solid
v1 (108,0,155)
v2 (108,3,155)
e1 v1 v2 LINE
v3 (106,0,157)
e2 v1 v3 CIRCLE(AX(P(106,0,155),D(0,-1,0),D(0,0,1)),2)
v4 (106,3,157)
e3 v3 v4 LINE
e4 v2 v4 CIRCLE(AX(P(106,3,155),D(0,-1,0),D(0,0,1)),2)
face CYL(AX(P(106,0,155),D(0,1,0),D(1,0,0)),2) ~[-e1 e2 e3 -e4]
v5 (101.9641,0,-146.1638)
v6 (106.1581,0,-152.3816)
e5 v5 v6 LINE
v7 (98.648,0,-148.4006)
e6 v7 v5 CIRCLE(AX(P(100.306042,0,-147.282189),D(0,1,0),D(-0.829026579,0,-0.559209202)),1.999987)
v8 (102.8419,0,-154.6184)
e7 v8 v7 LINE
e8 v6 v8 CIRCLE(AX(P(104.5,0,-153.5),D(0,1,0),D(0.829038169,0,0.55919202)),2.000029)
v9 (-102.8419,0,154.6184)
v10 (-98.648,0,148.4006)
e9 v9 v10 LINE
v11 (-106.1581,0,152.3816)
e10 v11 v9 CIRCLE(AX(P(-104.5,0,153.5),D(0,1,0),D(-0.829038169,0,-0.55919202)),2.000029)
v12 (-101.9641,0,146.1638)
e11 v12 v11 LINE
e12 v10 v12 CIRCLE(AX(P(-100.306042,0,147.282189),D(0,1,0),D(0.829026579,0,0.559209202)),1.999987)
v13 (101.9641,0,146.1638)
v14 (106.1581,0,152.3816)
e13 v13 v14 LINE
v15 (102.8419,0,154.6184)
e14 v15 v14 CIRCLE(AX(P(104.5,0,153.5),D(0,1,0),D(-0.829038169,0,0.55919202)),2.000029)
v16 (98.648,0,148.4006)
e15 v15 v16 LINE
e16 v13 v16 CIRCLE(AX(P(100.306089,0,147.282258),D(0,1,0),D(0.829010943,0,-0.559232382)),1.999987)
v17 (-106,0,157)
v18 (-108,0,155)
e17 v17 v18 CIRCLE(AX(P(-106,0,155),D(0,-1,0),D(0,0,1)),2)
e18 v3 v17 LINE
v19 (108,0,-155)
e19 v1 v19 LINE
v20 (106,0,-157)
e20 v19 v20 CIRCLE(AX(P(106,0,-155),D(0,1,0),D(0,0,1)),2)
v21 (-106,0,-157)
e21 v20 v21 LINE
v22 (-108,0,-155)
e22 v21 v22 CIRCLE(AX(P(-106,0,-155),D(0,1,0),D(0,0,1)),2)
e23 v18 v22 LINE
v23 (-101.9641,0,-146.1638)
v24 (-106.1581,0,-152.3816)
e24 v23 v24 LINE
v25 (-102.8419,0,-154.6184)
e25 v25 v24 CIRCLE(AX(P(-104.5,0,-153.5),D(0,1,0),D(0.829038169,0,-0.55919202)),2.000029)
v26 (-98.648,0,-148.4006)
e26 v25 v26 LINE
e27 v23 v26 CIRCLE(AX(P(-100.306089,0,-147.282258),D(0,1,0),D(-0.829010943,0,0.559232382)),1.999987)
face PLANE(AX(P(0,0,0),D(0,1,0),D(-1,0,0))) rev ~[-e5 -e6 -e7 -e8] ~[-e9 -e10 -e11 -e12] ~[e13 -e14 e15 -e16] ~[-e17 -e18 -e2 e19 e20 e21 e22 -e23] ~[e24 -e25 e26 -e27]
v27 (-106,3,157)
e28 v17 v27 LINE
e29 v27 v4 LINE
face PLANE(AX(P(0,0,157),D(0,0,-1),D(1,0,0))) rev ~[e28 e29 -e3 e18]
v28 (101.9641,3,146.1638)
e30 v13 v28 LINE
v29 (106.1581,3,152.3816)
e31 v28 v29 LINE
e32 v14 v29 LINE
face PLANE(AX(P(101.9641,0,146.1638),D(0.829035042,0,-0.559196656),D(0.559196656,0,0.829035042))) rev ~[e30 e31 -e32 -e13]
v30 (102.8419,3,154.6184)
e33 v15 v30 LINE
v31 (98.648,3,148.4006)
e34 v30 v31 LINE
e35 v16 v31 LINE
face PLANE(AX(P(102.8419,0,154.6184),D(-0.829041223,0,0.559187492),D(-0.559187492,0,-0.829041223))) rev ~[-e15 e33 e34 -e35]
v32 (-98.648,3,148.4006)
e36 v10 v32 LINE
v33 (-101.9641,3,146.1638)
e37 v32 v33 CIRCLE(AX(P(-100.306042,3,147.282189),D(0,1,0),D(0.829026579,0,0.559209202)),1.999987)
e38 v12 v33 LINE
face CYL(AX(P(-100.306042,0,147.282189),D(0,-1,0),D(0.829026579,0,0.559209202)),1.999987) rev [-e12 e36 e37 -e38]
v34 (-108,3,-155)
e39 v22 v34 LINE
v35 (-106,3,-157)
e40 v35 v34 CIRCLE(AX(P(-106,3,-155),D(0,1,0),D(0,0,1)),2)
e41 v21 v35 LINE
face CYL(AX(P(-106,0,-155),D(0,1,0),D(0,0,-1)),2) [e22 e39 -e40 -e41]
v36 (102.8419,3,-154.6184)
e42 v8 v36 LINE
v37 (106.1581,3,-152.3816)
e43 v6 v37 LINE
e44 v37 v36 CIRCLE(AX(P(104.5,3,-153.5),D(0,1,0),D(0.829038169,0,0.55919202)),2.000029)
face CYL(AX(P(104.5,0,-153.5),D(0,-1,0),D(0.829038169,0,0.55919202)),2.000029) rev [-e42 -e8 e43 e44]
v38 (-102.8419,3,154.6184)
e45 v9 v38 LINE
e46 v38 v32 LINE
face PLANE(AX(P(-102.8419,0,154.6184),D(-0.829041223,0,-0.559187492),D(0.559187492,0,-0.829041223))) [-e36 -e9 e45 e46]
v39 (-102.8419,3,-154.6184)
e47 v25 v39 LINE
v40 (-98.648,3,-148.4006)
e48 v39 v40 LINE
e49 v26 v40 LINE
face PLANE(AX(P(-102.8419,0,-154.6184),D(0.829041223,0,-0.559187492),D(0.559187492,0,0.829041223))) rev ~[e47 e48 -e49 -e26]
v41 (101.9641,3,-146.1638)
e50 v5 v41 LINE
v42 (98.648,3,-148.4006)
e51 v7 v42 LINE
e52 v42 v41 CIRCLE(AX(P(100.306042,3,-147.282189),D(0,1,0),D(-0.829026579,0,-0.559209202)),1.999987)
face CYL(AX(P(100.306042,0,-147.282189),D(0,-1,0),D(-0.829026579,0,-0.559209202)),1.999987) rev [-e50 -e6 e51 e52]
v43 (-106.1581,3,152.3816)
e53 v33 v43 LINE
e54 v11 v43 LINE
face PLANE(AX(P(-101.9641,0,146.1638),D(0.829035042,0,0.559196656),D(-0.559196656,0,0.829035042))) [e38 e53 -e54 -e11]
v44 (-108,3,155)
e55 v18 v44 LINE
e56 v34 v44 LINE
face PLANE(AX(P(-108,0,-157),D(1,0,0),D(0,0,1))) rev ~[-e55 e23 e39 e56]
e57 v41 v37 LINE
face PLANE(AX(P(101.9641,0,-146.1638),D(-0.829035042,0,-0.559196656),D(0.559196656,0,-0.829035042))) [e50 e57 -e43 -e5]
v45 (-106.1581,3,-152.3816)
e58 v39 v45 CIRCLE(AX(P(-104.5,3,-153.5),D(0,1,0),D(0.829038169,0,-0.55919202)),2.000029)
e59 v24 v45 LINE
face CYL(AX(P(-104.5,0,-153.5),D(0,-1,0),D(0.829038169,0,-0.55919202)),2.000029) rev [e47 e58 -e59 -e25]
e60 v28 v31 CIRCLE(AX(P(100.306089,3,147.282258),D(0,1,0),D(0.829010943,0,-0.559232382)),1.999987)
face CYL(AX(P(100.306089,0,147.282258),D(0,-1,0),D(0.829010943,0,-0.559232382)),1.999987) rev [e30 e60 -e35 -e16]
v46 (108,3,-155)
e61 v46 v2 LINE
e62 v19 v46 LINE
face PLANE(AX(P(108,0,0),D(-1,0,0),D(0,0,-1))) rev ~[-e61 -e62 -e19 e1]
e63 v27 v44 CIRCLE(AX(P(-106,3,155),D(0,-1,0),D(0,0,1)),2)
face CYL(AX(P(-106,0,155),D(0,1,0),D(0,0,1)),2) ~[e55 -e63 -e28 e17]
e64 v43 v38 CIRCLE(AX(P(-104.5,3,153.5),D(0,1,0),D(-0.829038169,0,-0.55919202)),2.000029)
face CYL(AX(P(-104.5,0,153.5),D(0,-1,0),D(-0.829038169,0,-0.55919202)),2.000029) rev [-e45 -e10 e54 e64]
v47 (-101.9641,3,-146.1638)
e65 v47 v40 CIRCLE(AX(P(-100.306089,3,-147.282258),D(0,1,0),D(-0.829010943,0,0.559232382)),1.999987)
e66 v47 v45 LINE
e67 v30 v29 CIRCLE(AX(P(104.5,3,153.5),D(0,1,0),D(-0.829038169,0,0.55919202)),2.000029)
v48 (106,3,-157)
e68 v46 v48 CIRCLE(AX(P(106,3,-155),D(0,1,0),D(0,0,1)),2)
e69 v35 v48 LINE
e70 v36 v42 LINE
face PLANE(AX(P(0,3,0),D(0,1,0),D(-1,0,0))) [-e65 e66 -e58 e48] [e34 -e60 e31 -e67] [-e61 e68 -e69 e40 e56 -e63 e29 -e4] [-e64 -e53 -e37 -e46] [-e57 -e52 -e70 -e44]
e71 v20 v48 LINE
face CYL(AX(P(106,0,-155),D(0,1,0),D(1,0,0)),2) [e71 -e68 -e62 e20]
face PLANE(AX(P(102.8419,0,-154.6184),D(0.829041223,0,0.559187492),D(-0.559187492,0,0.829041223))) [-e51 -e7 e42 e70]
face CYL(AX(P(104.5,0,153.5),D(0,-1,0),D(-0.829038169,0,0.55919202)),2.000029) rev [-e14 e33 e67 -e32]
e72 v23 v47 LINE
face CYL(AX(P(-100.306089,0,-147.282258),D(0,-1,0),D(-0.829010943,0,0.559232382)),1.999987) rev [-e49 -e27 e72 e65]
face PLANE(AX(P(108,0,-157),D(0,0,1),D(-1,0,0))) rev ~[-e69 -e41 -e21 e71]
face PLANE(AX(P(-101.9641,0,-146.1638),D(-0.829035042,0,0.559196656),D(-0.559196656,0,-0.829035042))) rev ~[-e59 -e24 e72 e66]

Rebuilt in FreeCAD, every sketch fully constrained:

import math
import FreeCAD as App
import Part
import Sketcher
Q = App.Units.Quantity


def edges_at(feature, points):
    """Names of the edges that pass closest to the given points."""
    edges = feature.Shape.Edges
    near = lambda p: min(range(len(edges)), key=lambda i: edges[i].distToShape(Part.Vertex(*p))[0])
    return sorted({f"Edge{near(p) + 1}" for p in points})


def add_polygon(sketch, points):
    """Adds a closed chain of lines whose ends are joined by coincident constraints."""
    first, n = sketch.GeometryCount, len(points)
    for a, b in zip(points, points[1:] + points[:1]):
        sketch.addGeometry(Part.LineSegment(App.Vector(*a, 0), App.Vector(*b, 0)), False)
    for i in range(n):
        sketch.addConstraint(Sketcher.Constraint("Coincident", first + i, 2, first + (i + 1) % n, 1))

doc = App.newDocument("Part")
params = doc.addObject("Spreadsheet::Sheet", "Params")
for row, (alias, value) in enumerate([
    ("sketch1_radius", "2 mm"),
    ("sketch1_width", "216 mm"),
    ("sketch1_height", "314 mm"),
    ("sketch1_length", "7.5 mm"),
    ("pad1_length", "3 mm"),
    ("fillet_radius", "2 mm"),
], start=1):
    params.set(f"A{row}", alias)
    params.set(f"B{row}", "=" + value)
    params.setAlias(f"B{row}", alias)

body = doc.addObject("PartDesign::Body", "Body")

sketch1 = body.newObject("Sketcher::SketchObject", "Sketch")
sketch1.AttachmentSupport = (doc.getObject("XZ_Plane"), [""])
sketch1.MapMode = "FlatFace"
add_polygon(sketch1, [(108, -157), (-108, -157), (-108, 157), (108, 157)])
sketch1.addGeometry(Part.LineSegment(App.Vector(106.1581, -152.3816, 0), App.Vector(101.9641, -146.1638, 0)), False)
sketch1.addGeometry(Part.ArcOfCircle(Part.Circle(App.Vector(100.3061, -147.2822, 0), App.Vector(0, 0, 1), 2.000029), math.radians(34.001541), math.radians(213.999939)), False)
sketch1.addGeometry(Part.LineSegment(App.Vector(98.648, -148.4006, 0), App.Vector(102.8419, -154.6184, 0)), False)
sketch1.addGeometry(Part.ArcOfCircle(Part.Circle(App.Vector(104.5, -153.5, 0), App.Vector(0, 0, 1), 2.000029), math.radians(-146.000061), math.radians(33.999939)), False)
sketch1.addGeometry(Part.LineSegment(App.Vector(102.8419, 154.6184, 0), App.Vector(98.648, 148.4006, 0)), False)
sketch1.addGeometry(Part.ArcOfCircle(Part.Circle(App.Vector(100.3061, 147.2822, 0), App.Vector(0, 0, 1), 1.999946), math.radians(146.000061), math.radians(325.998459)), False)
sketch1.addGeometry(Part.LineSegment(App.Vector(101.9641, 146.1638, 0), App.Vector(106.1581, 152.3816, 0)), False)
sketch1.addGeometry(Part.ArcOfCircle(Part.Circle(App.Vector(104.5, 153.5, 0), App.Vector(0, 0, 1), 2.000029), math.radians(-33.999939), math.radians(146.000061)), False)
sketch1.addGeometry(Part.LineSegment(App.Vector(-102.8419, -154.6184, 0), App.Vector(-98.648, -148.4006, 0)), False)
sketch1.addGeometry(Part.ArcOfCircle(Part.Circle(App.Vector(-100.3061, -147.2822, 0), App.Vector(0, 0, 1), 1.999946), math.radians(-33.999939), math.radians(145.998459)), False)
sketch1.addGeometry(Part.LineSegment(App.Vector(-101.9641, -146.1638, 0), App.Vector(-106.1581, -152.3816, 0)), False)
sketch1.addGeometry(Part.ArcOfCircle(Part.Circle(App.Vector(-104.5, -153.5, 0), App.Vector(0, 0, 1), 2.000029), math.radians(146.000061), math.radians(326.000061)), False)
sketch1.addGeometry(Part.ArcOfCircle(Part.Circle(App.Vector(-104.5, 153.5, 0), App.Vector(0, 0, 1), 2.000029), math.radians(33.999939), math.radians(213.999939)), False)
sketch1.addGeometry(Part.LineSegment(App.Vector(-106.1581, 152.3816, 0), App.Vector(-101.9641, 146.1638, 0)), False)
sketch1.addGeometry(Part.ArcOfCircle(Part.Circle(App.Vector(-100.3061, 147.2822, 0), App.Vector(0, 0, 1), 2.000029), math.radians(-145.998459), math.radians(33.999939)), False)
sketch1.addGeometry(Part.LineSegment(App.Vector(-98.648, 148.4006, 0), App.Vector(-102.8419, 154.6184, 0)), False)
sketch1.addConstraint(Sketcher.Constraint("Tangent", 4, 2, 5, 1))
sketch1.addConstraint(Sketcher.Constraint("Tangent", 5, 2, 6, 1))
sketch1.addConstraint(Sketcher.Constraint("Tangent", 6, 2, 7, 1))
sketch1.addConstraint(Sketcher.Constraint("Tangent", 7, 2, 4, 1))
sketch1.addConstraint(Sketcher.Constraint("Tangent", 8, 2, 9, 1))
sketch1.addConstraint(Sketcher.Constraint("Tangent", 9, 2, 10, 1))
sketch1.addConstraint(Sketcher.Constraint("Tangent", 10, 2, 11, 1))
sketch1.addConstraint(Sketcher.Constraint("Tangent", 11, 2, 8, 1))
sketch1.addConstraint(Sketcher.Constraint("Tangent", 12, 2, 13, 1))
sketch1.addConstraint(Sketcher.Constraint("Tangent", 13, 2, 14, 1))
sketch1.addConstraint(Sketcher.Constraint("Tangent", 14, 2, 15, 1))
sketch1.addConstraint(Sketcher.Constraint("Tangent", 15, 2, 12, 1))
sketch1.addConstraint(Sketcher.Constraint("Tangent", 16, 2, 17, 1))
sketch1.addConstraint(Sketcher.Constraint("Tangent", 17, 2, 18, 1))
sketch1.addConstraint(Sketcher.Constraint("Tangent", 18, 2, 19, 1))
sketch1.addConstraint(Sketcher.Constraint("Tangent", 19, 2, 16, 1))
sketch1.addConstraint(Sketcher.Constraint("Horizontal", 0))
sketch1.addConstraint(Sketcher.Constraint("Vertical", 1))
sketch1.addConstraint(Sketcher.Constraint("Horizontal", 2))
sketch1.addConstraint(Sketcher.Constraint("Vertical", 3))
sketch1.addConstraint(Sketcher.Constraint("Equal", 5, 7))
sketch1.addConstraint(Sketcher.Constraint("Equal", 7, 9))
sketch1.addConstraint(Sketcher.Constraint("Equal", 9, 11))
sketch1.addConstraint(Sketcher.Constraint("Equal", 11, 13))
sketch1.addConstraint(Sketcher.Constraint("Equal", 13, 15))
sketch1.addConstraint(Sketcher.Constraint("Equal", 15, 16))
sketch1.addConstraint(Sketcher.Constraint("Equal", 16, 18))
sketch1.addConstraint(Sketcher.Constraint("Symmetric", 9, 3, 13, 3, -1, 1))
sketch1.addConstraint(Sketcher.Constraint("Symmetric", 11, 3, 15, 3, -1, 1))
sketch1.addConstraint(Sketcher.Constraint("Symmetric", 7, 3, 16, 3, -1, 1))
sketch1.addConstraint(Sketcher.Constraint("Symmetric", 5, 3, 18, 3, -1, 1))
sketch1.addConstraint(Sketcher.Constraint("Symmetric", 0, 2, 2, 2, -1, 1))
sketch1.addConstraint(Sketcher.Constraint("Symmetric", 5, 3, 13, 3, -2))
sketch1.addConstraint(Sketcher.Constraint("Symmetric", 7, 3, 15, 3, -2))
sketch1.addConstraint(Sketcher.Constraint("Radius", 5, 2.0))
sketch1.addConstraint(Sketcher.Constraint("DistanceX", 0, 2, 0, 1, 216.0))
sketch1.addConstraint(Sketcher.Constraint("DistanceY", 1, 1, 1, 2, 314.0))
sketch1.addConstraint(Sketcher.Constraint("Distance", 4, 7.5))
sketch1.addConstraint(Sketcher.Constraint("DistanceX", 0, 2, 15, 3, 3.5))
sketch1.addConstraint(Sketcher.Constraint("DistanceY", 0, 2, 15, 3, 3.5))
sketch1.addConstraint(Sketcher.Constraint("Angle", 4, Q("124.0003 deg")))
sketch1.setExpression("Constraints[38]", "Params.sketch1_radius")
sketch1.setExpression("Constraints[39]", "Params.sketch1_width")
sketch1.setExpression("Constraints[40]", "Params.sketch1_height")
sketch1.setExpression("Constraints[41]", "Params.sketch1_length")
pad1 = body.newObject("PartDesign::Pad", "Pad")
pad1.Profile = sketch1
pad1.setExpression("Length", "Params.pad1_length")
pad1.Reversed = True
doc.recompute()

fillet = body.newObject("PartDesign::Fillet", "Fillet")
fillet.Base = (pad1, edges_at(pad1, [
    (108, 1.5, 157),
    (108, 1.5, -157),
    (-108, 1.5, -157),
    (-108, 1.5, 157),
]))
fillet.setExpression("Radius", "Params.fillet_radius")

doc.recompute()
